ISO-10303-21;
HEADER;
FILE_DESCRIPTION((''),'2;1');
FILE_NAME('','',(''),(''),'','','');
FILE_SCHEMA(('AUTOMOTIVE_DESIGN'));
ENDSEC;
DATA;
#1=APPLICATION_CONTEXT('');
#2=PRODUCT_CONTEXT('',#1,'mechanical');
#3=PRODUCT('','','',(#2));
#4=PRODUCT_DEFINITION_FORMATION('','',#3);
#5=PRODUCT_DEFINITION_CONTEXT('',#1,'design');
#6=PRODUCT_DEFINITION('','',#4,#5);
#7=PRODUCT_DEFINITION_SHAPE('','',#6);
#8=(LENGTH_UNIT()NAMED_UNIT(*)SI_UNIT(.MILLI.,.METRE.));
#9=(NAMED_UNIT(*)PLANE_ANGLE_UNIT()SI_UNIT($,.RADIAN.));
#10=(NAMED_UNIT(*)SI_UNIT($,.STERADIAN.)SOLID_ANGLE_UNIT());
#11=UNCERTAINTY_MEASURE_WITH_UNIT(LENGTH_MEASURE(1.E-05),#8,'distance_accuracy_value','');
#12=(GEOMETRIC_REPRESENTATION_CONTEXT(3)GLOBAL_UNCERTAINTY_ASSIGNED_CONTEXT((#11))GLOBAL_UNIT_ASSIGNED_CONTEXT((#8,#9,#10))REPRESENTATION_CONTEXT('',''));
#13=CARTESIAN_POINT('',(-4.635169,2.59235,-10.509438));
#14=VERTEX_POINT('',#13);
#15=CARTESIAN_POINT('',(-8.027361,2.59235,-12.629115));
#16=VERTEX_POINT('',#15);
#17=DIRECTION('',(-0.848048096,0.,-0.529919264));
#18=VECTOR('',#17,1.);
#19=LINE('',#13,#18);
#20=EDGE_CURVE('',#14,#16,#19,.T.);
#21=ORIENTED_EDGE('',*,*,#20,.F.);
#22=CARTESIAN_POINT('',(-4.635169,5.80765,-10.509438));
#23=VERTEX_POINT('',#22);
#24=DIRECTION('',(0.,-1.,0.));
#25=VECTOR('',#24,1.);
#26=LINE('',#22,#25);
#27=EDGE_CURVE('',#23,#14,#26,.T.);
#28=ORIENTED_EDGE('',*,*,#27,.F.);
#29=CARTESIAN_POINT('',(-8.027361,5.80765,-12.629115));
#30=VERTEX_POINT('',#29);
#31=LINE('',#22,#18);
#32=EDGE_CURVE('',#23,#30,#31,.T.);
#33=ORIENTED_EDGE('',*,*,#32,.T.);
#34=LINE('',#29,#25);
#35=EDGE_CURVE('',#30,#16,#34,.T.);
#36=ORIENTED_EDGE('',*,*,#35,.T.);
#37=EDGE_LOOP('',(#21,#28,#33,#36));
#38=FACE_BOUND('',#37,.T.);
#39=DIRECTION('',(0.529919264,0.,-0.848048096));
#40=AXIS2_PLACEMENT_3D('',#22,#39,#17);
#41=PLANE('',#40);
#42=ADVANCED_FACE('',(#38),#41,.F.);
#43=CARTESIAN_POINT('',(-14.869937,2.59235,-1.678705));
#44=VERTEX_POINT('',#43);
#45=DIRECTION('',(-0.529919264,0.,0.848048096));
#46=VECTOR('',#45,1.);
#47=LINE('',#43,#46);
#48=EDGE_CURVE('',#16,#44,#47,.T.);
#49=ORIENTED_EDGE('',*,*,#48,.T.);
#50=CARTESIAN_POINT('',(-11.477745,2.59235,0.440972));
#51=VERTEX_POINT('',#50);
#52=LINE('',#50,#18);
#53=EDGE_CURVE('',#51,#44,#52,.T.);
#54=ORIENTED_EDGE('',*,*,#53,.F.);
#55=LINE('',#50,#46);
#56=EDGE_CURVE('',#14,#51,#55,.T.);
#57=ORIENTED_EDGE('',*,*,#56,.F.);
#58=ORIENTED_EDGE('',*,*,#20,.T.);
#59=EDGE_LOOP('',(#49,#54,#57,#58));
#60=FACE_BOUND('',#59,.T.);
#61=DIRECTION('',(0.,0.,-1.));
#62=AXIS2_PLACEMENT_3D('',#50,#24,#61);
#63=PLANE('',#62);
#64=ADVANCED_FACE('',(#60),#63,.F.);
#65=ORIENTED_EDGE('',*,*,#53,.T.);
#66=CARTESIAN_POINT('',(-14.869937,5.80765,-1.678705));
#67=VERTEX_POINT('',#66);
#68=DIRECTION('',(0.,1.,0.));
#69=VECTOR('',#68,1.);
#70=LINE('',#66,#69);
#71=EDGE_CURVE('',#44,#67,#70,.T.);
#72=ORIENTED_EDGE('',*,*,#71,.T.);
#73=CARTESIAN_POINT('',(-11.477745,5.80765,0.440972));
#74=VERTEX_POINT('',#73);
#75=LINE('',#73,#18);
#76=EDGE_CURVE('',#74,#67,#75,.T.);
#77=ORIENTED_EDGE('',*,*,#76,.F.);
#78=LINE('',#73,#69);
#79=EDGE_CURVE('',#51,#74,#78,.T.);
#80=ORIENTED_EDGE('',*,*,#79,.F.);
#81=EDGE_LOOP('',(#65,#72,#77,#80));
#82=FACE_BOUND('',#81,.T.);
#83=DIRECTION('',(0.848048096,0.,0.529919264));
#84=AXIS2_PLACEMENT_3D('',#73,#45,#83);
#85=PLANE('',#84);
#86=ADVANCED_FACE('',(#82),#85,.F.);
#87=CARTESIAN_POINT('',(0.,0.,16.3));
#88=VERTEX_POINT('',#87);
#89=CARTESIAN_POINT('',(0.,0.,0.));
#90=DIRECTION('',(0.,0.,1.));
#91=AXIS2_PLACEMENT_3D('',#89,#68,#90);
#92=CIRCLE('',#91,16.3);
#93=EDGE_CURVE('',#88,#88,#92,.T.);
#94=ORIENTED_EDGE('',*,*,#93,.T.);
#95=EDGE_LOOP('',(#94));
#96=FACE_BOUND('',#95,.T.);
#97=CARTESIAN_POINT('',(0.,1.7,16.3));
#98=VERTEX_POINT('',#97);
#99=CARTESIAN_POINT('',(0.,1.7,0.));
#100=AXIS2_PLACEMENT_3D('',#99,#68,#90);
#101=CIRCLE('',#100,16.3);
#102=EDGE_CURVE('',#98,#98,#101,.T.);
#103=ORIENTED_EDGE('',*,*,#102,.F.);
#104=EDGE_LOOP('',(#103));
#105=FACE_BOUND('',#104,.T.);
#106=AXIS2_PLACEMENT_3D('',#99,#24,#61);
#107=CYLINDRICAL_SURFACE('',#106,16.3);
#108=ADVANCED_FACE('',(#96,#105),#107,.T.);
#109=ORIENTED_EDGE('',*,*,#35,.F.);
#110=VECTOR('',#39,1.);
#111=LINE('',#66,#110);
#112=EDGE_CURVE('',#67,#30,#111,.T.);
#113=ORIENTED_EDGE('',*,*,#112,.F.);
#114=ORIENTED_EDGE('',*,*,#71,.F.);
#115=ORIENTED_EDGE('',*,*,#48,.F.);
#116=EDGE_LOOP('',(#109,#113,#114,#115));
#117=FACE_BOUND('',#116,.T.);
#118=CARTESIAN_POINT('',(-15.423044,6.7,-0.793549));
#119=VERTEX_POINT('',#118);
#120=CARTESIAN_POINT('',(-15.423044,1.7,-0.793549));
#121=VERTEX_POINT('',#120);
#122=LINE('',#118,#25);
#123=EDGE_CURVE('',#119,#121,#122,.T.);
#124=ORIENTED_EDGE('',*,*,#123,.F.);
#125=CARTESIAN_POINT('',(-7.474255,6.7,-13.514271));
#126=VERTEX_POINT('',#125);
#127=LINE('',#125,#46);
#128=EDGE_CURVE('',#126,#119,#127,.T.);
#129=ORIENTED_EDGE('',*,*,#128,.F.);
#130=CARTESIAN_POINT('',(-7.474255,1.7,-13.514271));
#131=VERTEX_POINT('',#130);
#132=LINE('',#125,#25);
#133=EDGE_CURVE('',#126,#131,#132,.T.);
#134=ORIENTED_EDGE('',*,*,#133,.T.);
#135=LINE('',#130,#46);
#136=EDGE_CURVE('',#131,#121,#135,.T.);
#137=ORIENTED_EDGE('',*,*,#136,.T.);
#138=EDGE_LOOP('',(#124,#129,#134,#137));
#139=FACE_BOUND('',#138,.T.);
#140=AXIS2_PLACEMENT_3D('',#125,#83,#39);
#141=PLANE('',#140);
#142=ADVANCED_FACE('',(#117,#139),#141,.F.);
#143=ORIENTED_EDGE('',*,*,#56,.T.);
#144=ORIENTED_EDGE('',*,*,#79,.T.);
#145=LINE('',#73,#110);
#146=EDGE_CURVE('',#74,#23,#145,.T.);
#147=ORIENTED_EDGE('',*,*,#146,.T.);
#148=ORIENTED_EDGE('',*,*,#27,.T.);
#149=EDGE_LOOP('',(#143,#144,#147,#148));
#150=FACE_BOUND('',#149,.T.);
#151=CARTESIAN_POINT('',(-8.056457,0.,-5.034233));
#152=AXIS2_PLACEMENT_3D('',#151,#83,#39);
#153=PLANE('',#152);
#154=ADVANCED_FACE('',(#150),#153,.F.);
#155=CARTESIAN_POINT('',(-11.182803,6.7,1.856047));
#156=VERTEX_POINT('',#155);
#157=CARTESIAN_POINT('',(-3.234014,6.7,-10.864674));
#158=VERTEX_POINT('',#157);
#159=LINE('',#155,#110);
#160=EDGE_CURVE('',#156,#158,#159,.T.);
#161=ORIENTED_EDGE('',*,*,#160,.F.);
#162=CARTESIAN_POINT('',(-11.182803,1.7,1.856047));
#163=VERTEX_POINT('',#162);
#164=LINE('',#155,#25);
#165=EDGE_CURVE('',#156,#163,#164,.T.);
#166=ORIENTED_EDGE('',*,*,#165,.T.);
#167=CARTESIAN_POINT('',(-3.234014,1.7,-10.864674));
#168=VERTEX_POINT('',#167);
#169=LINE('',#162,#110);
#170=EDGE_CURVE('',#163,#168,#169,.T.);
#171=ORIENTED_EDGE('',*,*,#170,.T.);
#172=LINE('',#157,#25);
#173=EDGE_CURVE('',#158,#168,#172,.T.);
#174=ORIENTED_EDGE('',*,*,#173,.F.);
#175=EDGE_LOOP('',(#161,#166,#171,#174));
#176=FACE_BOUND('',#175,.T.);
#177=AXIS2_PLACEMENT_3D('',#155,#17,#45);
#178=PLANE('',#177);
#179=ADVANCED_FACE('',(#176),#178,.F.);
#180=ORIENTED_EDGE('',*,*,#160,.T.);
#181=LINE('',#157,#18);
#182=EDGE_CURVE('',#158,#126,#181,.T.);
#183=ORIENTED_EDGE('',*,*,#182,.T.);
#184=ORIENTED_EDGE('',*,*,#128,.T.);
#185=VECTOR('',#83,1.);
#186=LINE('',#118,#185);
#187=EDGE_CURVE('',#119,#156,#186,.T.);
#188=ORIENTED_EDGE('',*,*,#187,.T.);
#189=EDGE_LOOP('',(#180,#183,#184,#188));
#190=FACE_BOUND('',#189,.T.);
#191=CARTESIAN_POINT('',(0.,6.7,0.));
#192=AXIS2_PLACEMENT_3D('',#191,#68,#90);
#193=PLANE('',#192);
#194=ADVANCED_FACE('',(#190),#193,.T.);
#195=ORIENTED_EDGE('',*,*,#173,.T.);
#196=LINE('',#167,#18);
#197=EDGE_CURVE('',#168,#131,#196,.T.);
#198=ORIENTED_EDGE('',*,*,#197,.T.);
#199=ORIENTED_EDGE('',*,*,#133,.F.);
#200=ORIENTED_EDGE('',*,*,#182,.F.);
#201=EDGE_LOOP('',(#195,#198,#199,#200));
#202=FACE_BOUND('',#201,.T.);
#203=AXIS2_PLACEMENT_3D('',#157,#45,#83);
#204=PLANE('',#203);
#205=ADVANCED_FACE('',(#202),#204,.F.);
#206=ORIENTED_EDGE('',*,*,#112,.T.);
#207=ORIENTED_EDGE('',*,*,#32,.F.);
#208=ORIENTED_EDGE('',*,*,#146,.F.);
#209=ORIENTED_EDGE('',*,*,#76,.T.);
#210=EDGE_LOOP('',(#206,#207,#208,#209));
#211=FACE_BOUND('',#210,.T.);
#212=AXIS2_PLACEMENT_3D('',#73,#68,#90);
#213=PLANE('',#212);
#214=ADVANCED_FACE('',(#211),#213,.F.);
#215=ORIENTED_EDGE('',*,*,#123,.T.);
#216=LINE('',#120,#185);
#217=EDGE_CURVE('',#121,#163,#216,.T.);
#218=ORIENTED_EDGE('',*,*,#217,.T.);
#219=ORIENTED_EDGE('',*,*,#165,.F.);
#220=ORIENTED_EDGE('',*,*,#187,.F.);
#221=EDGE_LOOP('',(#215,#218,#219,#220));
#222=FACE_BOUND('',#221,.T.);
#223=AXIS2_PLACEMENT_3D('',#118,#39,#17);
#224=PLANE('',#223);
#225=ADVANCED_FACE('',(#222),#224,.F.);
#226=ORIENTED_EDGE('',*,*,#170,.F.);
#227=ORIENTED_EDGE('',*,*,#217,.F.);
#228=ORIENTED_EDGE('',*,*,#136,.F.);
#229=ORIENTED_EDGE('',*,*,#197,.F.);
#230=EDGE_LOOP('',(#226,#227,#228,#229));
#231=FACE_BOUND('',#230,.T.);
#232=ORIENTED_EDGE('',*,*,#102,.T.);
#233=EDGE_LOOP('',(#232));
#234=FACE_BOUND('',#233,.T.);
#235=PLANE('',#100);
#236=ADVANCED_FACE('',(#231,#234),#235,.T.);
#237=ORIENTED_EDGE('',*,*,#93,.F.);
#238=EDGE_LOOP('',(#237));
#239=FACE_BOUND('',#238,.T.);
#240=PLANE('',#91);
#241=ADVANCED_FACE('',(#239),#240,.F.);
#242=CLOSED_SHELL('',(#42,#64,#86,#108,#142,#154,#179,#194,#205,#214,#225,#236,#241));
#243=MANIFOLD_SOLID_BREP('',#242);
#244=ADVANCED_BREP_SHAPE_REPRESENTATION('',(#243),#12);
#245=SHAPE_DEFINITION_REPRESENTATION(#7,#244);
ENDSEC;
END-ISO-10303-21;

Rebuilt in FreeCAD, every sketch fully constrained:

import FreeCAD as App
import Part
import Sketcher

V = App.Vector
Q = App.Units.Quantity


def add_polygon(sketch, points):
    """Adds a closed chain of lines whose ends are joined by coincident constraints."""
    first, n = sketch.GeometryCount, len(points)
    for a, b in zip(points, points[1:] + points[:1]):
        sketch.addGeometry(Part.LineSegment(App.Vector(*a, 0), App.Vector(*b, 0)), False)
    for i in range(n):
        sketch.addConstraint(Sketcher.Constraint("Coincident", first + i, 2, first + (i + 1) % n, 1))

doc = App.newDocument("Part")
body = doc.addObject("PartDesign::Body", "Body")

# Sketch on XZ plane
sketch1 = body.newObject("Sketcher::SketchObject", "Sketch")
sketch1.AttachmentSupport = (doc.getObject("XZ_Plane"), [""])
sketch1.MapMode = "FlatFace"
sketch1.addGeometry(Part.Circle(V(0, 0, 0), V(0, 0, 1), 16.3), False)
sketch1.addConstraint([
    Sketcher.Constraint("Coincident", 0, 3, -1, 1),
    Sketcher.Constraint("Diameter", 0, 32.6),
])
pad1 = body.newObject("PartDesign::Pad", "Pad")
pad1.Profile = sketch1
pad1.Length = 1.7
pad1.Reversed = True

# Sketch on XZ plane
sketch2 = body.newObject("Sketcher::SketchObject", "Sketch001")
sketch2.AttachmentSupport = (doc.getObject("XZ_Plane"), [""])
sketch2.MapMode = "FlatFace"
sketch2.AttachmentOffset = App.Placement(V(0, 0, -1.7), App.Rotation())
add_polygon(sketch2, [(-7.474255, -13.514271), (-15.423044, -0.793549), (-11.182803, 1.856047), (-3.234014, -10.864674)])  # lines 0-3
sketch2.addConstraint([
    Sketcher.Constraint("Perpendicular", 0, 1),
    Sketcher.Constraint("Perpendicular", 1, 2),
    Sketcher.Constraint("Perpendicular", 2, 3),
    Sketcher.Constraint("Angle", 0, Q("122 deg")),
    Sketcher.Constraint("Distance", 0, 15.0),
    Sketcher.Constraint("Distance", 1, 5.0),
    Sketcher.Constraint("DistanceY", 0, 2, -1, 1, 0.793549),
    Sketcher.Constraint("DistanceX", 0, 2, -1, 1, 15.423044),
])
pad2 = body.newObject("PartDesign::Pad", "Pad001")
pad2.Profile = sketch2
pad2.Length = 5
pad2.Reversed = True

# Sketch on an angled plane
sketch3 = body.newObject("Sketcher::SketchObject", "Sketch002")
sketch3.Placement = App.Placement(V(-11.448649, 0, -7.15391), App.Rotation(V(-0.529919264, 0, 0.848048096), V(0, 0.999999999, 0), V(-0.848048096, 0, -0.529919264), "ZXY"))
add_polygon(sketch3, [(-6.456244, 5.80765), (-6.456244, 2.59235), (6.456244, 2.59235), (6.456244, 5.80765)])  # lines 0-3
sketch3.addConstraint([
    Sketcher.Constraint("Vertical", 0),
    Sketcher.Constraint("Horizontal", 1),
    Sketcher.Constraint("Vertical", 2),
    Sketcher.Constraint("Horizontal", 3),
    Sketcher.Constraint("DistanceY", 0, 2, 0, 1, 3.2153),
    Sketcher.Constraint("DistanceX", 1, 1, 1, 2, 12.912488),
    Sketcher.Constraint("DistanceY", -1, 1, 0, 2, 2.59235),
    Sketcher.Constraint("DistanceX", 0, 2, -1, 1, 6.456244),
])
pocket1 = body.newObject("PartDesign::Pocket", "Pocket")
pocket1.Profile = sketch3
pocket1.Length = 4

doc.recompute()
